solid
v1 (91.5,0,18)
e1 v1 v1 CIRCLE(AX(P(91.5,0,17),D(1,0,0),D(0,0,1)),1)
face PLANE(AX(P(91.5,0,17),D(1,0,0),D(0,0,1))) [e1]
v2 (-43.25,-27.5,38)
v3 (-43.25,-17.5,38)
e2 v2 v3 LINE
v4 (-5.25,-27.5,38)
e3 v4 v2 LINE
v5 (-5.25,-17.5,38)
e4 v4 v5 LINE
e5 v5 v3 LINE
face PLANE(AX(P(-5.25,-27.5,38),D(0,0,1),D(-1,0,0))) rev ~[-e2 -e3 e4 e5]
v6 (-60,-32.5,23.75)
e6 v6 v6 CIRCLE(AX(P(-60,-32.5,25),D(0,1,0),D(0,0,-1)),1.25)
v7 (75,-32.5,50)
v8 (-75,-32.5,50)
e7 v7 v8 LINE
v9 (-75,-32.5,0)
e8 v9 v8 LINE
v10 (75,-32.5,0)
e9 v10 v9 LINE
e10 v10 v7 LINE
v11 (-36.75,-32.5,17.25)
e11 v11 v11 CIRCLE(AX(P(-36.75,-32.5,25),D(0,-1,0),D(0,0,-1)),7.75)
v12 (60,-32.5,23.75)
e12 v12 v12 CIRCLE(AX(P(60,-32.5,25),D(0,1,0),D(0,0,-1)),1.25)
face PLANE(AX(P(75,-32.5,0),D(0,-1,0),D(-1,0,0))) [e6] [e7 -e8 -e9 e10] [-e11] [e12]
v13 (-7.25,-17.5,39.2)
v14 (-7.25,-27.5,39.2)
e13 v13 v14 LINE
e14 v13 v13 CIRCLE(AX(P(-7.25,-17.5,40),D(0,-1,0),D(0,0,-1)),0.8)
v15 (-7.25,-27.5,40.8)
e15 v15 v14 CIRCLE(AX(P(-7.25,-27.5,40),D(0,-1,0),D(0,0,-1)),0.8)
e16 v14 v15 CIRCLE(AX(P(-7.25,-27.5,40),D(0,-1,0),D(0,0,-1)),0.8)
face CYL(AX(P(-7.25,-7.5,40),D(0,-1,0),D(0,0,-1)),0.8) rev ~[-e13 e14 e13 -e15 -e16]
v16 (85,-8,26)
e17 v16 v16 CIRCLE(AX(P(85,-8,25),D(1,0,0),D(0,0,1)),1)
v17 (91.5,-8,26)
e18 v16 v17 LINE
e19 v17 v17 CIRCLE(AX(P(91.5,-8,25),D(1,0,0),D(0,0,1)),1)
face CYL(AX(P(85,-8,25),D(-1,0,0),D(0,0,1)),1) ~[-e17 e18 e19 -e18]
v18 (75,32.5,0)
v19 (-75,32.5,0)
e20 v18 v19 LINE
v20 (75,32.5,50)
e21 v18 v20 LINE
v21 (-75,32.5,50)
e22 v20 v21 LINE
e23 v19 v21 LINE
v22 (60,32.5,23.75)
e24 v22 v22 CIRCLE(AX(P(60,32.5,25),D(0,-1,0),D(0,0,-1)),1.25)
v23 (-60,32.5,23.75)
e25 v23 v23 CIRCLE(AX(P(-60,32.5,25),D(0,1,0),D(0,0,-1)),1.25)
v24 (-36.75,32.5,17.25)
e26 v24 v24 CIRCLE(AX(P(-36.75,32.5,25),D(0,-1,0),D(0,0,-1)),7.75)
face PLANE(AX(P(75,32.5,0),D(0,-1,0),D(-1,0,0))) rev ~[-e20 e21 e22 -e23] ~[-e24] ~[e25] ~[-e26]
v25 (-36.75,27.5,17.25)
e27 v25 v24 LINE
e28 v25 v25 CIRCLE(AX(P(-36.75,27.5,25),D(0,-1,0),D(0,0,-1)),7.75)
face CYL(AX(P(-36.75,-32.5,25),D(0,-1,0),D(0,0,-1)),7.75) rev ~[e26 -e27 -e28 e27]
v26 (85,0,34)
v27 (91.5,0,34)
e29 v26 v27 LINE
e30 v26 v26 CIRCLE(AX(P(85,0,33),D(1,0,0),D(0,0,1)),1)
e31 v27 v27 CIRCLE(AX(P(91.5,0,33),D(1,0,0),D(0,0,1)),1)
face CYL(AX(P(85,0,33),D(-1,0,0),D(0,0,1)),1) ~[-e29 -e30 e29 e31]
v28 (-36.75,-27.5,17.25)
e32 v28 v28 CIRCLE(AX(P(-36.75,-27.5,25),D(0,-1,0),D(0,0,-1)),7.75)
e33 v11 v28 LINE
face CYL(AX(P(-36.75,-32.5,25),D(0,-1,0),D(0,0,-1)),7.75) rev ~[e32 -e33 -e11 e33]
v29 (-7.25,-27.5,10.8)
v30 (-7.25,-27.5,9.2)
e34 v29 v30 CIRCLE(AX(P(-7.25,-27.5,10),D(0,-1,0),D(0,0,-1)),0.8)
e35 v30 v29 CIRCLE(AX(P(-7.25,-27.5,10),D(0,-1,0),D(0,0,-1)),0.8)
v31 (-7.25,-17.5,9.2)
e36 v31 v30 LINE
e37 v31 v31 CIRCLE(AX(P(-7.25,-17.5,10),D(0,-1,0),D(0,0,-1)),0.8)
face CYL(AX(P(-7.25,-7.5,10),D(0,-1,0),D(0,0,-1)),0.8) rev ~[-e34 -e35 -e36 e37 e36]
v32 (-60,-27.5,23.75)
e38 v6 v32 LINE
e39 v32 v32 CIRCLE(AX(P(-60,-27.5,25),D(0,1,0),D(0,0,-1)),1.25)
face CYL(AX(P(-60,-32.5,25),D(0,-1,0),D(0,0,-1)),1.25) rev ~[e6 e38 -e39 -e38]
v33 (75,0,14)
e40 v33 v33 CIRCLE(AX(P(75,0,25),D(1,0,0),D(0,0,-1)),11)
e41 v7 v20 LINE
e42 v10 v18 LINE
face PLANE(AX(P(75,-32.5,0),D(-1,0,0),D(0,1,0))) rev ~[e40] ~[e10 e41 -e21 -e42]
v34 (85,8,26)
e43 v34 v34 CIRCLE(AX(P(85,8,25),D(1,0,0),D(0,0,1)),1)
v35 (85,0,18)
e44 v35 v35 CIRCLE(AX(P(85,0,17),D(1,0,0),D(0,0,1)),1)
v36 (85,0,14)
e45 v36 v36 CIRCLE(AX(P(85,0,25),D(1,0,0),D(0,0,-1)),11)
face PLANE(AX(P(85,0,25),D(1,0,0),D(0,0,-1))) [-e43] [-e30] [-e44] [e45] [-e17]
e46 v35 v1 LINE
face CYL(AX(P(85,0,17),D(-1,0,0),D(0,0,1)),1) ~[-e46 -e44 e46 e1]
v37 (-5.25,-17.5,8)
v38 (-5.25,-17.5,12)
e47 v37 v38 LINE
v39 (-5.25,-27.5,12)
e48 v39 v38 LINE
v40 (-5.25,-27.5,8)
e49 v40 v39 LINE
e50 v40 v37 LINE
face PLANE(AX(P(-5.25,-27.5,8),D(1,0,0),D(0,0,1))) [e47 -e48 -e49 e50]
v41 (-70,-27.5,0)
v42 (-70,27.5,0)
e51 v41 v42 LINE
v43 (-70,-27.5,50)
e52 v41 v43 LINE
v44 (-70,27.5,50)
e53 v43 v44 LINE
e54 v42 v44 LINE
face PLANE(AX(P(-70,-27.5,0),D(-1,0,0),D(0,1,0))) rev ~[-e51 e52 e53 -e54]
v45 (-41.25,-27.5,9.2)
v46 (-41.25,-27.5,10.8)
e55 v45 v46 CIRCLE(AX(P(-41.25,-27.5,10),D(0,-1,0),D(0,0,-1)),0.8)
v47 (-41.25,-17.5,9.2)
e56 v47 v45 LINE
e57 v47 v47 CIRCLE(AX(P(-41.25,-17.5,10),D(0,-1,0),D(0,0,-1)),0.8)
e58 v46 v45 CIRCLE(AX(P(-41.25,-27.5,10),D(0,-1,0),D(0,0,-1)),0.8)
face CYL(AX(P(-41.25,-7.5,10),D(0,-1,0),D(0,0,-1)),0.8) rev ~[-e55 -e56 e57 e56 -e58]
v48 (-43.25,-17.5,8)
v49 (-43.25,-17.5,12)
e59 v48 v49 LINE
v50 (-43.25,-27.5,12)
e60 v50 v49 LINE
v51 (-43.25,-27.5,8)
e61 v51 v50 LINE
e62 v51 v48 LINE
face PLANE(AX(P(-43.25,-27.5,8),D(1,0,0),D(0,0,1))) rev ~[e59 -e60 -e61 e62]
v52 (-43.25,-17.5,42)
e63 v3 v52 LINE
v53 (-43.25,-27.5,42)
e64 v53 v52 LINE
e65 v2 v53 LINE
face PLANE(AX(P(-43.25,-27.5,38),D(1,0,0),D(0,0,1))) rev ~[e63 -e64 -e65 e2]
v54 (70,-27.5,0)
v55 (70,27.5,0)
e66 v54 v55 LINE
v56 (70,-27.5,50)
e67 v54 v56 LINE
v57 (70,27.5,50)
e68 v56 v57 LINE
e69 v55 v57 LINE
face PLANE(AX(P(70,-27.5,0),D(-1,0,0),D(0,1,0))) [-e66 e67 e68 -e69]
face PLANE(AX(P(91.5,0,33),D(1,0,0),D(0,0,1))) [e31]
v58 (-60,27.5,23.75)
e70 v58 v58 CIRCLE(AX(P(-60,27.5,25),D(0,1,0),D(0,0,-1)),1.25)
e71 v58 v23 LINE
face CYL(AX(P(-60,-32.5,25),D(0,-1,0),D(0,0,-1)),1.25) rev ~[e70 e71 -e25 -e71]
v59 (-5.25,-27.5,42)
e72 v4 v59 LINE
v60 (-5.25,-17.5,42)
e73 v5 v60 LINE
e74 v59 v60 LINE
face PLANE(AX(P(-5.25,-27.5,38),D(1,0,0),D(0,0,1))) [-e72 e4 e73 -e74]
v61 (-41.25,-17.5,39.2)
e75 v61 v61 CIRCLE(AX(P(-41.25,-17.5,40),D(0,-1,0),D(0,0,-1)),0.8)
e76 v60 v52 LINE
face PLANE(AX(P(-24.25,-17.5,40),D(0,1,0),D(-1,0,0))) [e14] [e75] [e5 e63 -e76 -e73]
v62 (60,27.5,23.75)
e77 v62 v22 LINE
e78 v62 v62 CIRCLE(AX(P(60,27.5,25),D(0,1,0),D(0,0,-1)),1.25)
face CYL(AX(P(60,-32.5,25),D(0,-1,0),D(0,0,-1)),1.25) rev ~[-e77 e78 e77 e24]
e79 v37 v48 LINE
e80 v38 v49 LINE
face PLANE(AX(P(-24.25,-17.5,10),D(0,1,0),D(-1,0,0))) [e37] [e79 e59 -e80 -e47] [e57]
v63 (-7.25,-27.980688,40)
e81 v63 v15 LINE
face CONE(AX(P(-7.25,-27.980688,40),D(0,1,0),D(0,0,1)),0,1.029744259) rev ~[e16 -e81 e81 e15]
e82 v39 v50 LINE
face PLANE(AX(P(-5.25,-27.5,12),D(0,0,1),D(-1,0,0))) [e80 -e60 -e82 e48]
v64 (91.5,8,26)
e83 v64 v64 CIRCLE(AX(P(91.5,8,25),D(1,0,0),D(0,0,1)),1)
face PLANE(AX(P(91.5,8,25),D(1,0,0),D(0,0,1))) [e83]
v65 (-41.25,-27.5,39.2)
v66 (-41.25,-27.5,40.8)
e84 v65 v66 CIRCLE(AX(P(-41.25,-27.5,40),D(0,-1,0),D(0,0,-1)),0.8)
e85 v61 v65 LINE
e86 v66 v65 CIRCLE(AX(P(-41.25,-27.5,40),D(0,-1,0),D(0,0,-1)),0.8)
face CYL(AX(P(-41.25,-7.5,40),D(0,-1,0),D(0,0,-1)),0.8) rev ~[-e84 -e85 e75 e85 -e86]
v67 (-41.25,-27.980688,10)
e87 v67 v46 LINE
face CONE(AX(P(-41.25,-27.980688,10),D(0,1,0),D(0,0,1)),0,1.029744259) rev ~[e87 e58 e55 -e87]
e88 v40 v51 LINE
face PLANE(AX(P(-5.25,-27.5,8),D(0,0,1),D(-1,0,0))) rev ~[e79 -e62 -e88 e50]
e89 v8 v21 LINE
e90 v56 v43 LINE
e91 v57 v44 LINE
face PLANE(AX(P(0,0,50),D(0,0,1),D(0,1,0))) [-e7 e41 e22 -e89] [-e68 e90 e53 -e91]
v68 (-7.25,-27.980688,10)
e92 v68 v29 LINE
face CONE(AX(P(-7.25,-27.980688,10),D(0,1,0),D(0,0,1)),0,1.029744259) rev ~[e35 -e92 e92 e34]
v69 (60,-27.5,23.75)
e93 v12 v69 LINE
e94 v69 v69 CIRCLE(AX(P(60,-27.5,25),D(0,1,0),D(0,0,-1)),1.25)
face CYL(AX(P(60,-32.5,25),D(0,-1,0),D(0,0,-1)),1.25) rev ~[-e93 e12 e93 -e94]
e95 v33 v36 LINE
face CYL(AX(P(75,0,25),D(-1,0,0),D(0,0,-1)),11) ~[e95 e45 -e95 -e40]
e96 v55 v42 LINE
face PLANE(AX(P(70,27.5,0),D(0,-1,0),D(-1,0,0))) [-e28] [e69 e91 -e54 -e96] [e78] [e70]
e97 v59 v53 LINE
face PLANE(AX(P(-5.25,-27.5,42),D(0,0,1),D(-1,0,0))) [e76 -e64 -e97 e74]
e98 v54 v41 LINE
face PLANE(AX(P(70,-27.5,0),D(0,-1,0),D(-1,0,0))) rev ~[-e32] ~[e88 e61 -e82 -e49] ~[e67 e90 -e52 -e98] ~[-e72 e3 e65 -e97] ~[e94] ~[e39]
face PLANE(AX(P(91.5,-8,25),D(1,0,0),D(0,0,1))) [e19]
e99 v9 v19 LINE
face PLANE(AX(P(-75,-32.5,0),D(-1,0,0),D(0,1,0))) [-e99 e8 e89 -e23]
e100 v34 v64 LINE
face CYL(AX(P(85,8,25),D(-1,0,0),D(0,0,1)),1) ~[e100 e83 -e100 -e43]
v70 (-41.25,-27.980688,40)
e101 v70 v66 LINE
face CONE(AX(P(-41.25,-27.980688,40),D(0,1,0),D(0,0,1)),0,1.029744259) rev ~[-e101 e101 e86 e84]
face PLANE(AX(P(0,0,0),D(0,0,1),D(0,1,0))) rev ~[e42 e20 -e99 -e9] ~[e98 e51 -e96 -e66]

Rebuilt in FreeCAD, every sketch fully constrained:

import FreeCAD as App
import Part
import Sketcher

V = App.Vector
Q = App.Units.Quantity

doc = App.newDocument("Part")
body = doc.addObject("PartDesign::Body", "Body")

sketch1 = doc.addObject("Sketcher::SketchObject", "Sketch")
body.addObject(sketch1)
sketch1.AttachmentSupport = (doc.XY_Plane, [""])
sketch1.MapMode = "FlatFace"
sketch1.addGeometry([
    Part.LineSegment(V(-75, -32, 0), V(75, -32, 0)),
    Part.LineSegment(V(75, -32, 0), V(75, 32, 0)),
    Part.LineSegment(V(75, 32, 0), V(-75, 32, 0)),
    Part.LineSegment(V(-75, 32, 0), V(-75, -32, 0)),
    Part.LineSegment(V(70, 28, 0), V(70, -28, 0)),
    Part.LineSegment(V(70, -28, 0), V(-70, -28, 0)),
    Part.LineSegment(V(-70, -28, 0), V(-70, 28, 0)),
    Part.LineSegment(V(-70, 28, 0), V(70, 28, 0)),
], False)
sketch1.addConstraint([
    Sketcher.Constraint("Coincident", 0, 2, 1, 1),
    Sketcher.Constraint("Coincident", 1, 2, 2, 1),
    Sketcher.Constraint("Coincident", 2, 2, 3, 1),
    Sketcher.Constraint("Coincident", 3, 2, 0, 1),
    Sketcher.Constraint("Coincident", 4, 2, 5, 1),
    Sketcher.Constraint("Coincident", 5, 2, 6, 1),
    Sketcher.Constraint("Coincident", 6, 2, 7, 1),
    Sketcher.Constraint("Coincident", 7, 2, 4, 1),
    Sketcher.Constraint("Horizontal", 0),
    Sketcher.Constraint("Vertical", 1),
    Sketcher.Constraint("Horizontal", 2),
    Sketcher.Constraint("Vertical", 3),
    Sketcher.Constraint("Vertical", 4),
    Sketcher.Constraint("Horizontal", 5),
    Sketcher.Constraint("Vertical", 6),
    Sketcher.Constraint("Horizontal", 7),
    Sketcher.Constraint("Symmetric", 0, 2, 2, 2, -1, 1),
    Sketcher.Constraint("Symmetric", 4, 2, 6, 2, -1, 1),
    Sketcher.Constraint("DistanceX", 0, 1, 0, 2, Q("150 mm")),
    Sketcher.Constraint("DistanceX", 5, 2, 5, 1, Q("140 mm")),
    Sketcher.Constraint("DistanceY", 1, 1, 1, 2, Q("65 mm")),
    Sketcher.Constraint("DistanceY", 4, 2, 4, 1, Q("55 mm")),
])
pad1 = doc.addObject("PartDesign::Pad", "Pad")
body.addObject(pad1)
pad1.Profile = sketch1
pad1.Length = 50

sketch2 = doc.addObject("Sketcher::SketchObject", "Sketch001")
body.addObject(sketch2)
sketch2.AttachmentSupport = (doc.XZ_Plane, [""])
sketch2.MapMode = "FlatFace"
sketch2.AttachmentOffset = App.Placement(V(0, 0, 32.5), App.Rotation())
sketch2.addGeometry([
    Part.Circle(V(-60, 25, 0), V(0, 0, 1), 1.2),
    Part.Circle(V(60, 25, 0), V(0, 0, 1), 1.2),
], False)
sketch2.addConstraint([
    Sketcher.Constraint("Equal", 0, 1),
    Sketcher.Constraint("Symmetric", 0, 3, 1, 3, -2),
    Sketcher.Constraint("Diameter", 0, Q("2.5 mm")),
    Sketcher.Constraint("DistanceX", 0, 3, -1, 1, Q("60 mm")),
    Sketcher.Constraint("DistanceY", -1, 1, 0, 3, Q("25 mm")),
])
pocket1 = doc.addObject("PartDesign::Pocket", "Pocket")
body.addObject(pocket1)
pocket1.Profile = sketch2
pocket1.Type = "ThroughAll"

sketch3 = doc.addObject("Sketcher::SketchObject", "Sketch002")
body.addObject(sketch3)
sketch3.AttachmentSupport = (doc.XZ_Plane, [""])
sketch3.MapMode = "FlatFace"
sketch3.AttachmentOffset = App.Placement(V(0, 0, 32.5), App.Rotation())
sketch3.addGeometry(Part.Circle(V(-37, 25, 0), V(0, 0, 1), 8), False)
sketch3.addConstraint([
    Sketcher.Constraint("Diameter", 0, Q("15.5 mm")),
    Sketcher.Constraint("DistanceY", -1, 1, 0, 3, Q("25 mm")),
    Sketcher.Constraint("DistanceX", 0, 3, -1, 1, Q("36.75 mm")),
])
pocket2 = doc.addObject("PartDesign::Pocket", "Pocket001")
body.addObject(pocket2)
pocket2.Profile = sketch3
pocket2.Type = "ThroughAll"

sketch4 = doc.addObject("Sketcher::SketchObject", "Sketch003")
body.addObject(sketch4)
sketch4.AttachmentSupport = (doc.XZ_Plane, [""])
sketch4.MapMode = "FlatFace"
sketch4.AttachmentOffset = App.Placement(V(0, 0, 32.5), App.Rotation())
sketch4.addGeometry([
    Part.Circle(V(-60, 25, 0), V(0, 0, 1), 1.2),
    Part.Circle(V(60, 25, 0), V(0, 0, 1), 1.2),
], False)
sketch4.addConstraint([
    Sketcher.Constraint("Equal", 0, 1),
    Sketcher.Constraint("Symmetric", 0, 3, 1, 3, -2),
    Sketcher.Constraint("Diameter", 0, Q("2.5 mm")),
    Sketcher.Constraint("DistanceX", 0, 3, -1, 1, Q("60 mm")),
    Sketcher.Constraint("DistanceY", -1, 1, 0, 3, Q("25 mm")),
])
doc.recompute()
hole = doc.addObject("PartDesign::Hole", "Hole")
body.addObject(hole)
hole.Profile = sketch4
hole.ThreadType = "None"
hole.Diameter = 2.5
hole.DepthType = "Dimension"
hole.Depth = 5
hole.DrillPoint = "Angled"
hole.DrillPointAngle = 118

sketch5 = doc.addObject("Sketcher::SketchObject", "Sketch004")
body.addObject(sketch5)
sketch5.AttachmentSupport = (doc.XZ_Plane, [""])
sketch5.MapMode = "FlatFace"
sketch5.AttachmentOffset = App.Placement(V(0, 0, -32.5), App.Rotation())
sketch5.addGeometry([
    Part.Circle(V(60, 25, 0), V(0, 0, 1), 1.2),
    Part.Circle(V(-60, 25, 0), V(0, 0, 1), 1.2),
], False)
sketch5.addConstraint([
    Sketcher.Constraint("Equal", 0, 1),
    Sketcher.Constraint("Symmetric", 0, 3, 1, 3, -2),
    Sketcher.Constraint("Diameter", 0, Q("2.5 mm")),
    Sketcher.Constraint("DistanceX", -1, 1, 0, 3, Q("60 mm")),
    Sketcher.Constraint("DistanceY", -1, 1, 0, 3, Q("25 mm")),
])
doc.recompute()
hole2 = doc.addObject("PartDesign::Hole", "Hole001")
body.addObject(hole2)
hole2.Profile = sketch5
hole2.ThreadType = "None"
hole2.Diameter = 2.5
hole2.DepthType = "Dimension"
hole2.Depth = 5
hole2.DrillPoint = "Angled"
hole2.DrillPointAngle = 118

sketch6 = doc.addObject("Sketcher::SketchObject", "Sketch005")
body.addObject(sketch6)
sketch6.AttachmentSupport = (doc.XZ_Plane, [""])
sketch6.MapMode = "FlatFace"
sketch6.AttachmentOffset = App.Placement(V(0, 0, 27.5), App.Rotation())
sketch6.addGeometry([
    Part.LineSegment(V(-5.2, 42, 0), V(-5.2, 38, 0)),
    Part.LineSegment(V(-5.2, 38, 0), V(-43.2, 38, 0)),
    Part.LineSegment(V(-43.2, 38, 0), V(-43.2, 42, 0)),
    Part.LineSegment(V(-43.2, 42, 0), V(-5.2, 42, 0)),
    Part.Circle(V(-7.2, 40, 0), V(0, 0, 1), 0.5),
    Part.Circle(V(-41.2, 40, 0), V(0, 0, 1), 0.5),
    Part.LineSegment(V(-5.2, 12, 0), V(-5.2, 8, 0)),
    Part.LineSegment(V(-5.2, 8, 0), V(-43.2, 8, 0)),
    Part.LineSegment(V(-43.2, 8, 0), V(-43.2, 12, 0)),
    Part.LineSegment(V(-43.2, 12, 0), V(-5.2, 12, 0)),
    Part.Circle(V(-7.2, 10, 0), V(0, 0, 1), 0.5),
    Part.Circle(V(-41.2, 10, 0), V(0, 0, 1), 0.5),
], False)
sketch6.addConstraint([
    Sketcher.Constraint("Coincident", 0, 2, 1, 1),
    Sketcher.Constraint("Coincident", 1, 2, 2, 1),
    Sketcher.Constraint("Coincident", 2, 2, 3, 1),
    Sketcher.Constraint("Coincident", 3, 2, 0, 1),
    Sketcher.Constraint("Coincident", 6, 2, 7, 1),
    Sketcher.Constraint("Coincident", 7, 2, 8, 1),
    Sketcher.Constraint("Coincident", 8, 2, 9, 1),
    Sketcher.Constraint("Coincident", 9, 2, 6, 1),
    Sketcher.Constraint("Vertical", 0),
    Sketcher.Constraint("Horizontal", 1),
    Sketcher.Constraint("Vertical", 2),
    Sketcher.Constraint("Horizontal", 3),
    Sketcher.Constraint("Vertical", 6),
    Sketcher.Constraint("Horizontal", 7),
    Sketcher.Constraint("Vertical", 8),
    Sketcher.Constraint("Horizontal", 9),
    Sketcher.Constraint("Equal", 4, 5),
    Sketcher.Constraint("Equal", 5, 10),
    Sketcher.Constraint("Equal", 10, 11),
    Sketcher.Constraint("Horizontal", 4, 3, 5, 3),
    Sketcher.Constraint("Horizontal", 10, 3, 11, 3),
    Sketcher.Constraint("Vertical", 4, 3, 10, 3),
    Sketcher.Constraint("Vertical", 5, 3, 11, 3),
    Sketcher.Constraint("Vertical", 3, 2, 6, 2),
    Sketcher.Constraint("Vertical", 2, 2, 7, 2),
    Sketcher.Constraint("Equal", 2, 6),
    Sketcher.Constraint("Diameter", 4, Q("1 mm")),
    Sketcher.Constraint("DistanceX", 1, 2, 1, 1, Q("38 mm")),
    Sketcher.Constraint("DistanceY", 0, 2, 0, 1, Q("4 mm")),
    Sketcher.Constraint("DistanceY", -1, 1, 4, 3, Q("40 mm")),
    Sketcher.Constraint("DistanceY", -1, 1, 10, 3, Q("10 mm")),
    Sketcher.Constraint("DistanceY", -1, 1, 0, 2, Q("38 mm")),
    Sketcher.Constraint("DistanceY", -1, 1, 6, 2, Q("8 mm")),
    Sketcher.Constraint("DistanceX", 5, 3, 4, 3, Q("34 mm")),
    Sketcher.Constraint("DistanceX", 4, 3, 0, 2, Q("2 mm")),
    Sketcher.Constraint("DistanceX", 4, 3, -1, 1, Q("7.25 mm")),
])
pad2 = doc.addObject("PartDesign::Pad", "Pad001")
body.addObject(pad2)
pad2.Profile = sketch6
pad2.Length = 10
pad2.Reversed = True

sketch7 = doc.addObject("Sketcher::SketchObject", "Sketch006")
body.addObject(sketch7)
sketch7.AttachmentSupport = (doc.XZ_Plane, [""])
sketch7.MapMode = "FlatFace"
sketch7.AttachmentOffset = App.Placement(V(0, 0, 17.5), App.Rotation())
sketch7.addGeometry([
    Part.Circle(V(-7.2, 10, 0), V(0, 0, 1), 0.8),
    Part.Circle(V(-7.2, 40, 0), V(0, 0, 1), 0.8),
    Part.Circle(V(-41.2, 40, 0), V(0, 0, 1), 0.8),
    Part.Circle(V(-41.2, 10, 0), V(0, 0, 1), 0.8),
], False)
sketch7.addConstraint([
    Sketcher.Constraint("Equal", 0, 1),
    Sketcher.Constraint("Equal", 1, 2),
    Sketcher.Constraint("Equal", 2, 3),
    Sketcher.Constraint("Horizontal", 1, 3, 2, 3),
    Sketcher.Constraint("Horizontal", 0, 3, 3, 3),
    Sketcher.Constraint("Vertical", 0, 3, 1, 3),
    Sketcher.Constraint("Vertical", 2, 3, 3, 3),
    Sketcher.Constraint("Diameter", 0, Q("1.6 mm")),
    Sketcher.Constraint("DistanceY", -1, 1, 0, 3, Q("10 mm")),
    Sketcher.Constraint("DistanceY", -1, 1, 1, 3, Q("40 mm")),
    Sketcher.Constraint("DistanceX", 2, 3, 1, 3, Q("34 mm")),
    Sketcher.Constraint("DistanceX", 0, 3, -1, 1, Q("7.25 mm")),
])
doc.recompute()
hole3 = doc.addObject("PartDesign::Hole", "Hole002")
body.addObject(hole3)
hole3.Profile = sketch7
hole3.ThreadType = "None"
hole3.Diameter = 1.6
hole3.DepthType = "Dimension"
hole3.Depth = 10
hole3.DrillPoint = "Angled"
hole3.DrillPointAngle = 118
hole3.Reversed = True

sketch8 = doc.addObject("Sketcher::SketchObject", "Sketch007")
body.addObject(sketch8)
sketch8.AttachmentSupport = (doc.YZ_Plane, [""])
sketch8.MapMode = "FlatFace"
sketch8.AttachmentOffset = App.Placement(V(0, 0, 75), App.Rotation())
sketch8.addGeometry(Part.Circle(V(0, 25, 0), V(0, 0, 1), 11), False)
sketch8.addConstraint([
    Sketcher.Constraint("PointOnObject", 0, 3, -2),
    Sketcher.Constraint("Diameter", 0, Q("22 mm")),
    Sketcher.Constraint("DistanceY", -1, 1, 0, 3, Q("25 mm")),
])
pad3 = doc.addObject("PartDesign::Pad", "Pad002")
body.addObject(pad3)
pad3.Profile = sketch8
pad3.Length = 10

sketch9 = doc.addObject("Sketcher::SketchObject", "Sketch008")
body.addObject(sketch9)
sketch9.AttachmentSupport = (doc.YZ_Plane, [""])
sketch9.MapMode = "FlatFace"
sketch9.AttachmentOffset = App.Placement(V(0, 0, 85), App.Rotation())
sketch9.addGeometry([
    Part.Circle(V(0, 33, 0), V(0, 0, 1), 1),
    Part.Circle(V(8, 25, 0), V(0, 0, 1), 1),
    Part.Circle(V(0, 17, 0), V(0, 0, 1), 1),
    Part.Circle(V(-8, 25, 0), V(0, 0, 1), 1),
], False)
sketch9.addConstraint([
    Sketcher.Constraint("Equal", 0, 1),
    Sketcher.Constraint("Equal", 1, 2),
    Sketcher.Constraint("Equal", 2, 3),
    Sketcher.Constraint("Symmetric", 1, 3, 3, 3, -2),
    Sketcher.Constraint("PointOnObject", 0, 3, -2),
    Sketcher.Constraint("PointOnObject", 2, 3, -2),
    Sketcher.Constraint("Diameter", 0, Q("2 mm")),
    Sketcher.Constraint("DistanceY", -1, 1, 0, 3, Q("33 mm")),
    Sketcher.Constraint("DistanceX", -1, 1, 1, 3, Q("8 mm")),
    Sketcher.Constraint("DistanceY", -1, 1, 1, 3, Q("25 mm")),
    Sketcher.Constraint("DistanceY", -1, 1, 2, 3, Q("17 mm")),
])
pad4 = doc.addObject("PartDesign::Pad", "Pad003")
body.addObject(pad4)
pad4.Profile = sketch9
pad4.Length = 6.5

doc.recompute()
